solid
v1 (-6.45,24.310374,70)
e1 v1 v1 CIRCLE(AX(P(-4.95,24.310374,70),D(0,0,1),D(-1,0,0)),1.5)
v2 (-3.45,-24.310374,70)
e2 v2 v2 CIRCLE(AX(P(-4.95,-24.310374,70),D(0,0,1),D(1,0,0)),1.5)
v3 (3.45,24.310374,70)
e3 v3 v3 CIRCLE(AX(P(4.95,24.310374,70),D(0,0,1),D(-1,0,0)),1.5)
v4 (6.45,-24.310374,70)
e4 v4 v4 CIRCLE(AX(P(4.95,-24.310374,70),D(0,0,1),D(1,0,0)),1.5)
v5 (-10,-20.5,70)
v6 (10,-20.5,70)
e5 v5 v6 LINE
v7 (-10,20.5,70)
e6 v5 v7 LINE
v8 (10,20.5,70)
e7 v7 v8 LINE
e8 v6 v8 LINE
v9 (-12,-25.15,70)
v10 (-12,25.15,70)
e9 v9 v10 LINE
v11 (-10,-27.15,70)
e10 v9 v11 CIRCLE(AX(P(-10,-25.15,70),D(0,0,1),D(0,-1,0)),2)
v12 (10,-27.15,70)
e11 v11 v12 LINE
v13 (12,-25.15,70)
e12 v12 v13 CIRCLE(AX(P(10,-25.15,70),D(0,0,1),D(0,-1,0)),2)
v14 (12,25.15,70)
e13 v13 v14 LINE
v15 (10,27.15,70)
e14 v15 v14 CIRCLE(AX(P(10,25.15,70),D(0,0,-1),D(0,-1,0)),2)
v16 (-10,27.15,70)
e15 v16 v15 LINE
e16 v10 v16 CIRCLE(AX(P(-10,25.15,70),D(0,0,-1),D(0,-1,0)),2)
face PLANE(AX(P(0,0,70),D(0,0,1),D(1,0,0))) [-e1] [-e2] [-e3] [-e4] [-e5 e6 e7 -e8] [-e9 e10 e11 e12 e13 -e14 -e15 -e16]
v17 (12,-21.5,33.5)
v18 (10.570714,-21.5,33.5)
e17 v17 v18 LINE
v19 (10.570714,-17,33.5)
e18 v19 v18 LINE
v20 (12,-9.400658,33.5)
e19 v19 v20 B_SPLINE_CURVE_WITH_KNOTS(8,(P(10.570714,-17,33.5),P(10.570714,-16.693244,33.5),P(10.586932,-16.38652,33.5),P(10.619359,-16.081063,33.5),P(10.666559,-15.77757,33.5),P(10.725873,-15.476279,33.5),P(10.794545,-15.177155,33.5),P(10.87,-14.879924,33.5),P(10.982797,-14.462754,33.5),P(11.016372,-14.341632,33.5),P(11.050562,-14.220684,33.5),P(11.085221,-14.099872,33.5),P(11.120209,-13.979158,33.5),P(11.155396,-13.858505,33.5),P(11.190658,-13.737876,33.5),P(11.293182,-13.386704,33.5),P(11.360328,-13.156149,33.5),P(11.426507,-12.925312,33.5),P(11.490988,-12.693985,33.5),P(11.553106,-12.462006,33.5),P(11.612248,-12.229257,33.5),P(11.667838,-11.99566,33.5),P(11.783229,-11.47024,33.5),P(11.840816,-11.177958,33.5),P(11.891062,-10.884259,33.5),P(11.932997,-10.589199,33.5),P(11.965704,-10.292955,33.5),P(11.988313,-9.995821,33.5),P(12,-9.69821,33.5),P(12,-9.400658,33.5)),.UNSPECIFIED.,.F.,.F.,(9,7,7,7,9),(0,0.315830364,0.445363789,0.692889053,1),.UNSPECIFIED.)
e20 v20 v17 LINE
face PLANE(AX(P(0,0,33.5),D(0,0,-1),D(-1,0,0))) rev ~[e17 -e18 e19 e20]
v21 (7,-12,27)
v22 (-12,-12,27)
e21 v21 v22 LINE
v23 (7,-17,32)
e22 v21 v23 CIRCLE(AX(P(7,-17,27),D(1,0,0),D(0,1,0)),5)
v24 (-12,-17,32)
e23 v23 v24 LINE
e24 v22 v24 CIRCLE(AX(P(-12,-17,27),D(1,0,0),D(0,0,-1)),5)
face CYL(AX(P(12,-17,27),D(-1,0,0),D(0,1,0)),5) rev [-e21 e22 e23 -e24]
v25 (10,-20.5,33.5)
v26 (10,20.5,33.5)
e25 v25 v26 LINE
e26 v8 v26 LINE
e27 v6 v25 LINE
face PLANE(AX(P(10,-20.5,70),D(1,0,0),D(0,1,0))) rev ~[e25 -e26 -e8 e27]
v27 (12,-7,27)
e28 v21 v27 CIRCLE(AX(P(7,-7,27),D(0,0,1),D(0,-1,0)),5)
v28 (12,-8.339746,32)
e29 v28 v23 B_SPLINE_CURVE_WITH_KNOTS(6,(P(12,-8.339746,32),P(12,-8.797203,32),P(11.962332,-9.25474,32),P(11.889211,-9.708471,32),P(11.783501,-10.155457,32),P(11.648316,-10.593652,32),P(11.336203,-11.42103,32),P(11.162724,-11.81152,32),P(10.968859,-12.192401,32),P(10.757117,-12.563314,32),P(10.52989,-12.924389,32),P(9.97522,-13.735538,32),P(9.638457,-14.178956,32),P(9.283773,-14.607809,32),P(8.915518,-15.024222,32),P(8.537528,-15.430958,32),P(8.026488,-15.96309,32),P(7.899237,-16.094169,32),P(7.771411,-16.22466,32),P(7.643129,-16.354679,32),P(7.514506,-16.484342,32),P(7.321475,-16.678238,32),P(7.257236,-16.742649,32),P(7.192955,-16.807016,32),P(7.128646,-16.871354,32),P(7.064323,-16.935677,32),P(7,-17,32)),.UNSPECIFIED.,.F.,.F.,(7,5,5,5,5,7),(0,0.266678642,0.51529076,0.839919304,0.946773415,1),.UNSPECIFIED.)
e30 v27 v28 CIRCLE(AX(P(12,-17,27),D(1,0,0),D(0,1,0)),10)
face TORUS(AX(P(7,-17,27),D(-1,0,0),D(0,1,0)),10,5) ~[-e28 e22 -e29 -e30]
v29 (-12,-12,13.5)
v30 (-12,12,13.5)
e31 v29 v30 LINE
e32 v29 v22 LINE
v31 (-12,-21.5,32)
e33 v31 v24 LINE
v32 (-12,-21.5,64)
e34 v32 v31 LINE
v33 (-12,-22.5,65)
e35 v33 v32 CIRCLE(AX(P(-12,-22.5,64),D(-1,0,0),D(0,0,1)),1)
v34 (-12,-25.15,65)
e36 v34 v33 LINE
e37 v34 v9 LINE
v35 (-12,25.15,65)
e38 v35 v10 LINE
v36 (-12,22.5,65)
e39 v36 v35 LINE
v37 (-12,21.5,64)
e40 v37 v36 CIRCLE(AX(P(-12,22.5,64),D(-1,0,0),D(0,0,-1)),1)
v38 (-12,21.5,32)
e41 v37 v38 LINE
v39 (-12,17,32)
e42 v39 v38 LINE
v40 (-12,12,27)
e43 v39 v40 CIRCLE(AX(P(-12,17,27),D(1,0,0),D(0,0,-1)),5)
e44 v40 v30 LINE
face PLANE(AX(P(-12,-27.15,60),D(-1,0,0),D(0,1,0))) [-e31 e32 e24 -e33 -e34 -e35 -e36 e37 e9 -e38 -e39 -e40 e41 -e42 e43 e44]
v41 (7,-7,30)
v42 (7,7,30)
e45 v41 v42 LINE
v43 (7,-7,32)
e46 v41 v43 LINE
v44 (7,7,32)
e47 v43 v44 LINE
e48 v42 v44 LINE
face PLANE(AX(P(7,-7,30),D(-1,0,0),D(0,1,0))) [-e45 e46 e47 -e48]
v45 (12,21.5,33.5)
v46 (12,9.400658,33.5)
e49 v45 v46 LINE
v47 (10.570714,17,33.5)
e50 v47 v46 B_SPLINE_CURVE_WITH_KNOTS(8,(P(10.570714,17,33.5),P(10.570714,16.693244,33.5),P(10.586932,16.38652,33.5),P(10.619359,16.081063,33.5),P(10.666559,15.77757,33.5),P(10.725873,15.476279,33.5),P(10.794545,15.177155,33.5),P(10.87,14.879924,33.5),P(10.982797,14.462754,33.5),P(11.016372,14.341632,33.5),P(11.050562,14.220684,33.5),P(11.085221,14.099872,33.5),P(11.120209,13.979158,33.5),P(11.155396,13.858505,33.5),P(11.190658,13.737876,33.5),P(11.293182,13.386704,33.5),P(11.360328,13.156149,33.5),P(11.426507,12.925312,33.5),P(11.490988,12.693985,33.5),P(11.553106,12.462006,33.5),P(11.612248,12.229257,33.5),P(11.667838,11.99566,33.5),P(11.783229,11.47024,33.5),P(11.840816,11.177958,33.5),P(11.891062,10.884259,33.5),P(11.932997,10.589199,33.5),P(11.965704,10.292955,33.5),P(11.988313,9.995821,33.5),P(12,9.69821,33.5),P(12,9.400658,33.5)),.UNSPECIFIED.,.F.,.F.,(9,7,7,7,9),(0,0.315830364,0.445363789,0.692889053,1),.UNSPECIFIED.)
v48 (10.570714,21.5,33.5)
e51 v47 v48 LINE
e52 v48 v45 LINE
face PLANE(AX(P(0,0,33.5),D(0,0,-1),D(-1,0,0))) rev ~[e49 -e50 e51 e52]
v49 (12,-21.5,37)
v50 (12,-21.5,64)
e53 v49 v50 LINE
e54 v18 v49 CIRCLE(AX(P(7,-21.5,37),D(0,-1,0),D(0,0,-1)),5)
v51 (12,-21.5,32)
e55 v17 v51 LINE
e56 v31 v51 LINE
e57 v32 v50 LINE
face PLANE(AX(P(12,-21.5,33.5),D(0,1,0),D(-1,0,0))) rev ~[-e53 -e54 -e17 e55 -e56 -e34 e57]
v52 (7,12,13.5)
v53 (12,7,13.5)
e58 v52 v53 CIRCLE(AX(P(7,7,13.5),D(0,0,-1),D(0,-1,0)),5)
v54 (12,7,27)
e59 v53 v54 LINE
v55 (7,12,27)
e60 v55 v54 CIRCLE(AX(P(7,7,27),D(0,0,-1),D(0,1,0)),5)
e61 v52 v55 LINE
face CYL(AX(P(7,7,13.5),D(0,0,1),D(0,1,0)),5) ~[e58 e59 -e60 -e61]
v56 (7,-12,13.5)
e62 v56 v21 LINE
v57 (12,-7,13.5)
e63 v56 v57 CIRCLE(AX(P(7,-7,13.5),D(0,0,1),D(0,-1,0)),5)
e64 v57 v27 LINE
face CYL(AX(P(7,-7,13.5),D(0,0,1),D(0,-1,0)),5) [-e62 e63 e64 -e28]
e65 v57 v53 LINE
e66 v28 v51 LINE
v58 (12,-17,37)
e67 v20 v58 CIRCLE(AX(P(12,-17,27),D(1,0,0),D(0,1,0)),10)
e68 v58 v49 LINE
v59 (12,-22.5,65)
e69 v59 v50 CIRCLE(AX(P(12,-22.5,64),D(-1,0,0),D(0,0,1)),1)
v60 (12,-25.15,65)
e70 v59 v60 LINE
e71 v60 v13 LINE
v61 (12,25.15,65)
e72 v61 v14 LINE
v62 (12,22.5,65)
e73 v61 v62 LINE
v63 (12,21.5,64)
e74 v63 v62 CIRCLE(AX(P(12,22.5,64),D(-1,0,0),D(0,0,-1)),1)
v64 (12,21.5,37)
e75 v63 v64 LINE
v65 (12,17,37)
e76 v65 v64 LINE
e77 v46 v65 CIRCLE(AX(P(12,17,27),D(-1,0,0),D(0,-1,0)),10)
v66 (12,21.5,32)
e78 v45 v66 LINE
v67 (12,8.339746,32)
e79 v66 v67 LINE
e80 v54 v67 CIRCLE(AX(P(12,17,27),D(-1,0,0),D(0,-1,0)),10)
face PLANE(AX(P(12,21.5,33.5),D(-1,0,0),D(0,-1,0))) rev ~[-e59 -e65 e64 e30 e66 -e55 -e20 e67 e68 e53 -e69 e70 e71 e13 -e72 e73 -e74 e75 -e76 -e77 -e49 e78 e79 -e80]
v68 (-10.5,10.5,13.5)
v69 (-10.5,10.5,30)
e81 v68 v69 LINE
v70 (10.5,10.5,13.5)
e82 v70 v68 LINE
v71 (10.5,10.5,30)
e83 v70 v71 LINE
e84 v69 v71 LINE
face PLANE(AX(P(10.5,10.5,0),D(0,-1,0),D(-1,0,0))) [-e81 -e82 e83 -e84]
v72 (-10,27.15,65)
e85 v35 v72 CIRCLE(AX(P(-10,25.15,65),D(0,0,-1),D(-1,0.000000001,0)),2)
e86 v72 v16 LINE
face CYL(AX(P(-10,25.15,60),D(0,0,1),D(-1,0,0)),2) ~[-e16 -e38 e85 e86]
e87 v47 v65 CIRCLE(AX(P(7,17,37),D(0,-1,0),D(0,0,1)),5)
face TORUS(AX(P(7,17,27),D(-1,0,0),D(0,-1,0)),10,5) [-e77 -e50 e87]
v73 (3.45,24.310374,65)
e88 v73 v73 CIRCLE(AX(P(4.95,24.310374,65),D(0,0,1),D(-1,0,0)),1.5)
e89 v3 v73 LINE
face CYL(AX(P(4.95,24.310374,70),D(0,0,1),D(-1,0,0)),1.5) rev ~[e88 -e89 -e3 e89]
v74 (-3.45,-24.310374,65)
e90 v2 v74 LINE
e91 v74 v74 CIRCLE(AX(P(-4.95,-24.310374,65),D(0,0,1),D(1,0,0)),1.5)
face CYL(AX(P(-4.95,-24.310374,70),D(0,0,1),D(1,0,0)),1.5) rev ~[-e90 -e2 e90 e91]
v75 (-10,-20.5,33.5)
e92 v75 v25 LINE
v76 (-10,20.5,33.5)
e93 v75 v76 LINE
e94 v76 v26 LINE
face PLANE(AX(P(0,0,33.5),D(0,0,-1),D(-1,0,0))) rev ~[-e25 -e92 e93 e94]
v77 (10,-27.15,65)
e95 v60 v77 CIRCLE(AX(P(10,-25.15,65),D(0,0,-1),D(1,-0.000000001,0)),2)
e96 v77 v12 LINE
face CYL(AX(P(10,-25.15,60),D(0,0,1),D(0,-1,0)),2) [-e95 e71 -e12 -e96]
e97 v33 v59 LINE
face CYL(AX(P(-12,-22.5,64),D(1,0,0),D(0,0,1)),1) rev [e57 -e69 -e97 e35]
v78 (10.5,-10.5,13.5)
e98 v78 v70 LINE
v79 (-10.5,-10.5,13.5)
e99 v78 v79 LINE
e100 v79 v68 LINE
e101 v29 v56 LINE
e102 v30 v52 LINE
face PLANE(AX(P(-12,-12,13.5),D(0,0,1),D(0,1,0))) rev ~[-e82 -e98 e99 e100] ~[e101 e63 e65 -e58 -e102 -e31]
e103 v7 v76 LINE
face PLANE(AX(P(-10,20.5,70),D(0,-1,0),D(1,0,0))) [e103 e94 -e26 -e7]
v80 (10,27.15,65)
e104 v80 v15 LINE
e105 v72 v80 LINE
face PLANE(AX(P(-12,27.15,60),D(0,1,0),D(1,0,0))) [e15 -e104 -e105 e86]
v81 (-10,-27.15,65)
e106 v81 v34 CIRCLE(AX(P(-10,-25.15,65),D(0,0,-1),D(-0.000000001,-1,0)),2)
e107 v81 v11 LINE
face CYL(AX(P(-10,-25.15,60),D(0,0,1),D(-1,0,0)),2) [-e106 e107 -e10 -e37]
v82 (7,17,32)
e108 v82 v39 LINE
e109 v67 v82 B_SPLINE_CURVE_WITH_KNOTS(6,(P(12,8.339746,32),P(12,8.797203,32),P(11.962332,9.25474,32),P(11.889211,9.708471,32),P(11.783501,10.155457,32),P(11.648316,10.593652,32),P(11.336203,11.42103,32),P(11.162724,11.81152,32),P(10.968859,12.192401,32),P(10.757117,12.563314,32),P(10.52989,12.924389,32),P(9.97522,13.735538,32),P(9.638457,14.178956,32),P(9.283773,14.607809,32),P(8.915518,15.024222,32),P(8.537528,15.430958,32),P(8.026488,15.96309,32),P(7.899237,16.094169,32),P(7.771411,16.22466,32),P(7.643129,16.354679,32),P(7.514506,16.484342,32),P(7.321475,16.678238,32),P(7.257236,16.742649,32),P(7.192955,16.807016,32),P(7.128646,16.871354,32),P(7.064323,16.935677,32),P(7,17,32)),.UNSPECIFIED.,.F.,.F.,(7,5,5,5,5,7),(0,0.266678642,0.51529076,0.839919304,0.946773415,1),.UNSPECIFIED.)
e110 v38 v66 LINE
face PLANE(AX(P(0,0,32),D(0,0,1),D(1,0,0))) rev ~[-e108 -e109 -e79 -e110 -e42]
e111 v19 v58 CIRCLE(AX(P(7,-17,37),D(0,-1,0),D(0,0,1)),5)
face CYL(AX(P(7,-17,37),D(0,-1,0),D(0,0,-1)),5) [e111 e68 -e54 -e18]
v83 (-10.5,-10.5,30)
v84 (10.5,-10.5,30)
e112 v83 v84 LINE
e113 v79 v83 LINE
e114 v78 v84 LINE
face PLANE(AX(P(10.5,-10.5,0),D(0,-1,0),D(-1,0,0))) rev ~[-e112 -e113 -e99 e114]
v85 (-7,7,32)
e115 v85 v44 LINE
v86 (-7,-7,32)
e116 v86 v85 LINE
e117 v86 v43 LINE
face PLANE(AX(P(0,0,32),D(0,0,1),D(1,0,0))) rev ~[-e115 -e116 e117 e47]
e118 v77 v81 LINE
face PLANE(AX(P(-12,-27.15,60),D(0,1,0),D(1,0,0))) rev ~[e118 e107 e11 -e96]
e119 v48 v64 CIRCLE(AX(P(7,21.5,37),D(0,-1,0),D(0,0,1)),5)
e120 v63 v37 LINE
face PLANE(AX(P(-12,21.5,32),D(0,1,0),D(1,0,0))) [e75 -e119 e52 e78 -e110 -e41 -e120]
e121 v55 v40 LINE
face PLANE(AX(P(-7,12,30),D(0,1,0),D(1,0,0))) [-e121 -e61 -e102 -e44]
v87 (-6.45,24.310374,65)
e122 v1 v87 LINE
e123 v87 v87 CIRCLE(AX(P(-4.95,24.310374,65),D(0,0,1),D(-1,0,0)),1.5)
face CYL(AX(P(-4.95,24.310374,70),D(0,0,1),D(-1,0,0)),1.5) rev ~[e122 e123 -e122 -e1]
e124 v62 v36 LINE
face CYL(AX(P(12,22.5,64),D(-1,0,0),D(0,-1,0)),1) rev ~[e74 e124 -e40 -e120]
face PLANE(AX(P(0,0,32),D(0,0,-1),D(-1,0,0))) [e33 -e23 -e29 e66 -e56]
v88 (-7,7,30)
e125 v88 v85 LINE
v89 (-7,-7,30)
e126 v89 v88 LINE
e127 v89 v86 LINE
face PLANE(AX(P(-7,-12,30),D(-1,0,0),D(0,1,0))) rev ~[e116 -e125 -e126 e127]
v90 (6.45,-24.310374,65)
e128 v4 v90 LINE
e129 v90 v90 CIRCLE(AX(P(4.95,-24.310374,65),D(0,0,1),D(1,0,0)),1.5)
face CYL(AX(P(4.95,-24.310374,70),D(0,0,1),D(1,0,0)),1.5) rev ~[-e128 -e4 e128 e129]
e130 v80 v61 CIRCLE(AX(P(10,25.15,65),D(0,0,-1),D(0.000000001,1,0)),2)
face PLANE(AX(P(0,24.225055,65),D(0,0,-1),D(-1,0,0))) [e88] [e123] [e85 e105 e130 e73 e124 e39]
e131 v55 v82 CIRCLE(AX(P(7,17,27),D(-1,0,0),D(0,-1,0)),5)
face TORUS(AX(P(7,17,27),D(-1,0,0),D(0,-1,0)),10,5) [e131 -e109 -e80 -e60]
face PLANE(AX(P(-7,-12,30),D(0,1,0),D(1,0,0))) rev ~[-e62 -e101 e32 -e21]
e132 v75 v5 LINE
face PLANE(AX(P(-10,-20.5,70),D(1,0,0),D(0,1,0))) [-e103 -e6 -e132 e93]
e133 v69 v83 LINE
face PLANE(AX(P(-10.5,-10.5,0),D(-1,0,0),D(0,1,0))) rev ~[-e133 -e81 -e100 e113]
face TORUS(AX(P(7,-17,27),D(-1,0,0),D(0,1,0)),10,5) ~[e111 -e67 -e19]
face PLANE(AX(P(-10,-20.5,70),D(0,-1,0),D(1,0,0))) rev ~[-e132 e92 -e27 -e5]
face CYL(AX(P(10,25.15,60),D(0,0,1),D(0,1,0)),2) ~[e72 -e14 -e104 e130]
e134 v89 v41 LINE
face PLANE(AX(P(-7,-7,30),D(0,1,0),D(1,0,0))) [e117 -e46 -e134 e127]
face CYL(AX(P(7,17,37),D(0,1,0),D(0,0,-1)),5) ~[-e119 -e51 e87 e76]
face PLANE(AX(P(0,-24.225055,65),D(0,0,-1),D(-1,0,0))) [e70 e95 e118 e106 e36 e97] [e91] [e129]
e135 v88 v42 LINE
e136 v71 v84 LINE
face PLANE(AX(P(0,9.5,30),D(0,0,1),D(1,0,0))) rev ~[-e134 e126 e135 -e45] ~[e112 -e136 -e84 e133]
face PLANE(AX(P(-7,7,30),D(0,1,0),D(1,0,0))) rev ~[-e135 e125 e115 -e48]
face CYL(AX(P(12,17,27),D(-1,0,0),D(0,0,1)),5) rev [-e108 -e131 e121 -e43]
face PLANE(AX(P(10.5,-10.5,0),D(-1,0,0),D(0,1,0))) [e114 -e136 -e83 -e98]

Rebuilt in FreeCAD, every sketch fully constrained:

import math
import FreeCAD as App
import Part
import Sketcher

V = App.Vector


def edges_at(feature, points):
    """Names of the edges that pass closest to the given points."""
    edges = feature.Shape.Edges
    near = lambda p: min(range(len(edges)), key=lambda i: edges[i].distToShape(Part.Vertex(*p))[0])
    return sorted({f"Edge{near(p) + 1}" for p in points})

doc = App.newDocument("Part")
params = doc.addObject("Spreadsheet::Sheet", "Params")
for row, (alias, value) in enumerate([
    ("sketch1_width", "24 mm"),
    ("pad1_length", "30 mm"),
    ("sketch2_width", "21 mm"),
    ("sketch3_width", "5 mm"),
    ("sketch3_height", "24 mm"),
    ("pad2_length", "2 mm"),
    ("sketch4_width", "19 mm"),
    ("sketch4_height", "5 mm"),
    ("pad3_length", "2 mm"),
    ("sketch5_width", "5 mm"),
    ("sketch5_height", "19 mm"),
    ("pad4_length", "2 mm"),
    ("sketch6_width", "14 mm"),
    ("sketch6_height", "5 mm"),
    ("pad5_length", "2 mm"),
    ("sketch7_width", "24 mm"),
    ("sketch7_height", "43 mm"),
    ("pad6_length", "28 mm"),
    ("sketch8_width", "20 mm"),
    ("sketch8_height", "41 mm"),
    ("pocket2_length", "27 mm"),
    ("sketch9_width", "24 mm"),
    ("sketch9_height", "54.3 mm"),
    ("pad7_length", "10 mm"),
    ("sketch10_width", "20 mm"),
    ("sketch10_height", "41 mm"),
    ("pocket3_length", "10 mm"),
    ("sketch11_diameter", "3 mm"),
    ("pocket4_length", "10 mm"),
    ("fillet_radius", "5 mm"),
    ("fillet2_radius", "2 mm"),
    ("sketch12_radius", "2 mm"),
    ("sketch12_width", "20 mm"),
    ("sketch12_height", "3.65 mm"),
    ("pocket5_length", "5 mm"),
    ("sketch13_radius", "2 mm"),
    ("sketch13_width", "20 mm"),
    ("sketch13_height", "3.65 mm"),
    ("pocket6_length", "5 mm"),
    ("fillet3_radius", "1 mm"),
    ("sketch14_height", "13.5 mm"),
    ("pocket7_length", "45 mm"),
    ("fillet4_radius", "5 mm"),
    ("sketch15_width", "24 mm"),
    ("sketch15_height", "43 mm"),
    ("pad8_length", "1.5 mm"),
], start=1):
    params.set(f"A{row}", alias)
    params.set(f"B{row}", "=" + value)
    params.setAlias(f"B{row}", alias)

body = doc.addObject("PartDesign::Body", "Body")

sketch1 = body.newObject("Sketcher::SketchObject", "Sketch")
sketch1.AttachmentSupport = (doc.getObject("XY_Plane"), [""])
sketch1.MapMode = "FlatFace"
sketch1.addGeometry(Part.LineSegment(V(-12, 12, 0), V(-12, -12, 0)), False)
sketch1.addGeometry(Part.LineSegment(V(-12, -12, 0), V(12, -12, 0)), False)
sketch1.addGeometry(Part.LineSegment(V(12, -12, 0), V(12, 12, 0)), False)
sketch1.addGeometry(Part.LineSegment(V(12, 12, 0), V(-12, 12, 0)), False)
sketch1.addConstraint(Sketcher.Constraint("Coincident", 0, 2, 1, 1))
sketch1.addConstraint(Sketcher.Constraint("Coincident", 1, 2, 2, 1))
sketch1.addConstraint(Sketcher.Constraint("Coincident", 2, 2, 3, 1))
sketch1.addConstraint(Sketcher.Constraint("Coincident", 3, 2, 0, 1))
sketch1.addConstraint(Sketcher.Constraint("Vertical", 0))
sketch1.addConstraint(Sketcher.Constraint("Horizontal", 1))
sketch1.addConstraint(Sketcher.Constraint("Vertical", 2))
sketch1.addConstraint(Sketcher.Constraint("Horizontal", 3))
sketch1.addConstraint(Sketcher.Constraint("Symmetric", 0, 2, 2, 2, -1, 1))
sketch1.addConstraint(Sketcher.Constraint("Equal", 3, 0))
sketch1.addConstraint(Sketcher.Constraint("DistanceX", 1, 1, 1, 2, 24.0))
sketch1.setExpression("Constraints[10]", "Params.sketch1_width")
pad1 = body.newObject("PartDesign::Pad", "Pad")
pad1.Profile = sketch1
pad1.setExpression("Length", "Params.pad1_length")

sketch2 = body.newObject("Sketcher::SketchObject", "Sketch001")
sketch2.AttachmentSupport = (doc.getObject("XY_Plane"), [""])
sketch2.MapMode = "FlatFace"
sketch2.addGeometry(Part.LineSegment(V(10, 10, 0), V(10, -10, 0)), False)
sketch2.addGeometry(Part.LineSegment(V(10, -10, 0), V(-10, -10, 0)), False)
sketch2.addGeometry(Part.LineSegment(V(-10, -10, 0), V(-10, 10, 0)), False)
sketch2.addGeometry(Part.LineSegment(V(-10, 10, 0), V(10, 10, 0)), False)
sketch2.addConstraint(Sketcher.Constraint("Coincident", 0, 2, 1, 1))
sketch2.addConstraint(Sketcher.Constraint("Coincident", 1, 2, 2, 1))
sketch2.addConstraint(Sketcher.Constraint("Coincident", 2, 2, 3, 1))
sketch2.addConstraint(Sketcher.Constraint("Coincident", 3, 2, 0, 1))
sketch2.addConstraint(Sketcher.Constraint("Vertical", 0))
sketch2.addConstraint(Sketcher.Constraint("Horizontal", 1))
sketch2.addConstraint(Sketcher.Constraint("Vertical", 2))
sketch2.addConstraint(Sketcher.Constraint("Horizontal", 3))
sketch2.addConstraint(Sketcher.Constraint("Symmetric", 0, 2, 2, 2, -1, 1))
sketch2.addConstraint(Sketcher.Constraint("Equal", 3, 0))
sketch2.addConstraint(Sketcher.Constraint("DistanceX", 1, 2, 1, 1, 21.0))
sketch2.setExpression("Constraints[10]", "Params.sketch2_width")
pocket1 = body.newObject("PartDesign::Pocket", "Pocket")
pocket1.Profile = sketch2
pocket1.Type = "ThroughAll"
pocket1.Reversed = True

sketch3 = body.newObject("Sketcher::SketchObject", "Sketch002")
sketch3.AttachmentSupport = (doc.getObject("XY_Plane"), [""])
sketch3.MapMode = "FlatFace"
sketch3.AttachmentOffset = App.Placement(V(0, 0, 30), App.Rotation())
sketch3.addGeometry(Part.LineSegment(V(-12, 12, 0), V(-12, -12, 0)), False)
sketch3.addGeometry(Part.LineSegment(V(-12, -12, 0), V(-7, -12, 0)), False)
sketch3.addGeometry(Part.LineSegment(V(-7, -12, 0), V(-7, 12, 0)), False)
sketch3.addGeometry(Part.LineSegment(V(-7, 12, 0), V(-12, 12, 0)), False)
sketch3.addConstraint(Sketcher.Constraint("Coincident", 0, 2, 1, 1))
sketch3.addConstraint(Sketcher.Constraint("Coincident", 1, 2, 2, 1))
sketch3.addConstraint(Sketcher.Constraint("Coincident", 2, 2, 3, 1))
sketch3.addConstraint(Sketcher.Constraint("Coincident", 3, 2, 0, 1))
sketch3.addConstraint(Sketcher.Constraint("Vertical", 0))
sketch3.addConstraint(Sketcher.Constraint("Horizontal", 1))
sketch3.addConstraint(Sketcher.Constraint("Vertical", 2))
sketch3.addConstraint(Sketcher.Constraint("Horizontal", 3))
sketch3.addConstraint(Sketcher.Constraint("DistanceX", 1, 1, 1, 2, 5.0))
sketch3.addConstraint(Sketcher.Constraint("DistanceY", 0, 2, 0, 1, 24.0))
sketch3.addConstraint(Sketcher.Constraint("DistanceX", 0, 2, -1, 1, 12.0))
sketch3.addConstraint(Sketcher.Constraint("DistanceY", 0, 2, -1, 1, 12.0))
sketch3.setExpression("Constraints[8]", "Params.sketch3_width")
sketch3.setExpression("Constraints[9]", "Params.sketch3_height")
pad2 = body.newObject("PartDesign::Pad", "Pad001")
pad2.Profile = sketch3
pad2.setExpression("Length", "Params.pad2_length")

sketch4 = body.newObject("Sketcher::SketchObject", "Sketch003")
sketch4.AttachmentSupport = (doc.getObject("XY_Plane"), [""])
sketch4.MapMode = "FlatFace"
sketch4.AttachmentOffset = App.Placement(V(0, 0, 30), App.Rotation())
sketch4.addGeometry(Part.LineSegment(V(-7, -7, 0), V(-7, -12, 0)), False)
sketch4.addGeometry(Part.LineSegment(V(-7, -12, 0), V(12, -12, 0)), False)
sketch4.addGeometry(Part.LineSegment(V(12, -12, 0), V(12, -7, 0)), False)
sketch4.addGeometry(Part.LineSegment(V(12, -7, 0), V(-7, -7, 0)), False)
sketch4.addConstraint(Sketcher.Constraint("Coincident", 0, 2, 1, 1))
sketch4.addConstraint(Sketcher.Constraint("Coincident", 1, 2, 2, 1))
sketch4.addConstraint(Sketcher.Constraint("Coincident", 2, 2, 3, 1))
sketch4.addConstraint(Sketcher.Constraint("Coincident", 3, 2, 0, 1))
sketch4.addConstraint(Sketcher.Constraint("Vertical", 0))
sketch4.addConstraint(Sketcher.Constraint("Horizontal", 1))
sketch4.addConstraint(Sketcher.Constraint("Vertical", 2))
sketch4.addConstraint(Sketcher.Constraint("Horizontal", 3))
sketch4.addConstraint(Sketcher.Constraint("DistanceX", 1, 1, 1, 2, 19.0))
sketch4.addConstraint(Sketcher.Constraint("DistanceY", 0, 2, 0, 1, 5.0))
sketch4.addConstraint(Sketcher.Constraint("DistanceX", 0, 2, -1, 1, 7.0))
sketch4.addConstraint(Sketcher.Constraint("DistanceY", 0, 2, -1, 1, 12.0))
sketch4.setExpression("Constraints[8]", "Params.sketch4_width")
sketch4.setExpression("Constraints[9]", "Params.sketch4_height")
pad3 = body.newObject("PartDesign::Pad", "Pad002")
pad3.Profile = sketch4
pad3.setExpression("Length", "Params.pad3_length")

sketch5 = body.newObject("Sketcher::SketchObject", "Sketch004")
sketch5.AttachmentSupport = (doc.getObject("XY_Plane"), [""])
sketch5.MapMode = "FlatFace"
sketch5.AttachmentOffset = App.Placement(V(0, 0, 30), App.Rotation())
sketch5.addGeometry(Part.LineSegment(V(7, 12, 0), V(7, -7, 0)), False)
sketch5.addGeometry(Part.LineSegment(V(7, -7, 0), V(12, -7, 0)), False)
sketch5.addGeometry(Part.LineSegment(V(12, -7, 0), V(12, 12, 0)), False)
sketch5.addGeometry(Part.LineSegment(V(12, 12, 0), V(7, 12, 0)), False)
sketch5.addConstraint(Sketcher.Constraint("Coincident", 0, 2, 1, 1))
sketch5.addConstraint(Sketcher.Constraint("Coincident", 1, 2, 2, 1))
sketch5.addConstraint(Sketcher.Constraint("Coincident", 2, 2, 3, 1))
sketch5.addConstraint(Sketcher.Constraint("Coincident", 3, 2, 0, 1))
sketch5.addConstraint(Sketcher.Constraint("Vertical", 0))
sketch5.addConstraint(Sketcher.Constraint("Horizontal", 1))
sketch5.addConstraint(Sketcher.Constraint("Vertical", 2))
sketch5.addConstraint(Sketcher.Constraint("Horizontal", 3))
sketch5.addConstraint(Sketcher.Constraint("DistanceX", 1, 1, 1, 2, 5.0))
sketch5.addConstraint(Sketcher.Constraint("DistanceY", 0, 2, 0, 1, 19.0))
sketch5.addConstraint(Sketcher.Constraint("DistanceX", -1, 1, 0, 2, 7.0))
sketch5.addConstraint(Sketcher.Constraint("DistanceY", 0, 2, -1, 1, 7.0))
sketch5.setExpression("Constraints[8]", "Params.sketch5_width")
sketch5.setExpression("Constraints[9]", "Params.sketch5_height")
pad4 = body.newObject("PartDesign::Pad", "Pad003")
pad4.Profile = sketch5
pad4.setExpression("Length", "Params.pad4_length")

sketch6 = body.newObject("Sketcher::SketchObject", "Sketch005")
sketch6.AttachmentSupport = (doc.getObject("XY_Plane"), [""])
sketch6.MapMode = "FlatFace"
sketch6.AttachmentOffset = App.Placement(V(0, 0, 30), App.Rotation())
sketch6.addGeometry(Part.LineSegment(V(-7, 12, 0), V(-7, 7, 0)), False)
sketch6.addGeometry(Part.LineSegment(V(-7, 7, 0), V(7, 7, 0)), False)
sketch6.addGeometry(Part.LineSegment(V(7, 7, 0), V(7, 12, 0)), False)
sketch6.addGeometry(Part.LineSegment(V(7, 12, 0), V(-7, 12, 0)), False)
sketch6.addConstraint(Sketcher.Constraint("Coincident", 0, 2, 1, 1))
sketch6.addConstraint(Sketcher.Constraint("Coincident", 1, 2, 2, 1))
sketch6.addConstraint(Sketcher.Constraint("Coincident", 2, 2, 3, 1))
sketch6.addConstraint(Sketcher.Constraint("Coincident", 3, 2, 0, 1))
sketch6.addConstraint(Sketcher.Constraint("Vertical", 0))
sketch6.addConstraint(Sketcher.Constraint("Horizontal", 1))
sketch6.addConstraint(Sketcher.Constraint("Vertical", 2))
sketch6.addConstraint(Sketcher.Constraint("Horizontal", 3))
sketch6.addConstraint(Sketcher.Constraint("DistanceX", 1, 1, 1, 2, 14.0))
sketch6.addConstraint(Sketcher.Constraint("DistanceY", 0, 2, 0, 1, 5.0))
sketch6.addConstraint(Sketcher.Constraint("DistanceX", 0, 2, -1, 1, 7.0))
sketch6.addConstraint(Sketcher.Constraint("DistanceY", -1, 1, 0, 2, 7.0))
sketch6.setExpression("Constraints[8]", "Params.sketch6_width")
sketch6.setExpression("Constraints[9]", "Params.sketch6_height")
pad5 = body.newObject("PartDesign::Pad", "Pad004")
pad5.Profile = sketch6
pad5.setExpression("Length", "Params.pad5_length")

sketch7 = body.newObject("Sketcher::SketchObject", "Sketch006")
sketch7.AttachmentSupport = (doc.getObject("XY_Plane"), [""])
sketch7.MapMode = "FlatFace"
sketch7.AttachmentOffset = App.Placement(V(0, 0, 32), App.Rotation())
sketch7.addGeometry(Part.LineSegment(V(-12, 22, 0), V(-12, -22, 0)), False)
sketch7.addGeometry(Part.LineSegment(V(-12, -22, 0), V(12, -22, 0)), False)
sketch7.addGeometry(Part.LineSegment(V(12, -22, 0), V(12, 22, 0)), False)
sketch7.addGeometry(Part.LineSegment(V(12, 22, 0), V(-12, 22, 0)), False)
sketch7.addConstraint(Sketcher.Constraint("Coincident", 0, 2, 1, 1))
sketch7.addConstraint(Sketcher.Constraint("Coincident", 1, 2, 2, 1))
sketch7.addConstraint(Sketcher.Constraint("Coincident", 2, 2, 3, 1))
sketch7.addConstraint(Sketcher.Constraint("Coincident", 3, 2, 0, 1))
sketch7.addConstraint(Sketcher.Constraint("Vertical", 0))
sketch7.addConstraint(Sketcher.Constraint("Horizontal", 1))
sketch7.addConstraint(Sketcher.Constraint("Vertical", 2))
sketch7.addConstraint(Sketcher.Constraint("Horizontal", 3))
sketch7.addConstraint(Sketcher.Constraint("Symmetric", 0, 2, 2, 2, -1, 1))
sketch7.addConstraint(Sketcher.Constraint("DistanceX", 1, 1, 1, 2, 24.0))
sketch7.addConstraint(Sketcher.Constraint("DistanceY", 0, 2, 0, 1, 43.0))
sketch7.setExpression("Constraints[9]", "Params.sketch7_width")
sketch7.setExpression("Constraints[10]", "Params.sketch7_height")
pad6 = body.newObject("PartDesign::Pad", "Pad005")
pad6.Profile = sketch7
pad6.setExpression("Length", "Params.pad6_length")

sketch8 = body.newObject("Sketcher::SketchObject", "Sketch007")
sketch8.AttachmentSupport = (doc.getObject("XY_Plane"), [""])
sketch8.MapMode = "FlatFace"
sketch8.AttachmentOffset = App.Placement(V(0, 0, 60), App.Rotation())
sketch8.addGeometry(Part.LineSegment(V(-10, 20, 0), V(-10, -20, 0)), False)
sketch8.addGeometry(Part.LineSegment(V(-10, -20, 0), V(10, -20, 0)), False)
sketch8.addGeometry(Part.LineSegment(V(10, -20, 0), V(10, 20, 0)), False)
sketch8.addGeometry(Part.LineSegment(V(10, 20, 0), V(-10, 20, 0)), False)
sketch8.addConstraint(Sketcher.Constraint("Coincident", 0, 2, 1, 1))
sketch8.addConstraint(Sketcher.Constraint("Coincident", 1, 2, 2, 1))
sketch8.addConstraint(Sketcher.Constraint("Coincident", 2, 2, 3, 1))
sketch8.addConstraint(Sketcher.Constraint("Coincident", 3, 2, 0, 1))
sketch8.addConstraint(Sketcher.Constraint("Vertical", 0))
sketch8.addConstraint(Sketcher.Constraint("Horizontal", 1))
sketch8.addConstraint(Sketcher.Constraint("Vertical", 2))
sketch8.addConstraint(Sketcher.Constraint("Horizontal", 3))
sketch8.addConstraint(Sketcher.Constraint("Symmetric", 0, 2, 2, 2, -1, 1))
sketch8.addConstraint(Sketcher.Constraint("DistanceX", 1, 1, 1, 2, 20.0))
sketch8.addConstraint(Sketcher.Constraint("DistanceY", 0, 2, 0, 1, 41.0))
sketch8.setExpression("Constraints[9]", "Params.sketch8_width")
sketch8.setExpression("Constraints[10]", "Params.sketch8_height")
pocket2 = body.newObject("PartDesign::Pocket", "Pocket001")
pocket2.Profile = sketch8
pocket2.setExpression("Length", "Params.pocket2_length")

sketch9 = body.newObject("Sketcher::SketchObject", "Sketch008")
sketch9.AttachmentSupport = (doc.getObject("XY_Plane"), [""])
sketch9.MapMode = "FlatFace"
sketch9.AttachmentOffset = App.Placement(V(0, 0, 60), App.Rotation())
sketch9.addGeometry(Part.LineSegment(V(-12, 27, 0), V(-12, -27, 0)), False)
sketch9.addGeometry(Part.LineSegment(V(-12, -27, 0), V(12, -27, 0)), False)
sketch9.addGeometry(Part.LineSegment(V(12, -27, 0), V(12, 27, 0)), False)
sketch9.addGeometry(Part.LineSegment(V(12, 27, 0), V(-12, 27, 0)), False)
sketch9.addConstraint(Sketcher.Constraint("Coincident", 0, 2, 1, 1))
sketch9.addConstraint(Sketcher.Constraint("Coincident", 1, 2, 2, 1))
sketch9.addConstraint(Sketcher.Constraint("Coincident", 2, 2, 3, 1))
sketch9.addConstraint(Sketcher.Constraint("Coincident", 3, 2, 0, 1))
sketch9.addConstraint(Sketcher.Constraint("Vertical", 0))
sketch9.addConstraint(Sketcher.Constraint("Horizontal", 1))
sketch9.addConstraint(Sketcher.Constraint("Vertical", 2))
sketch9.addConstraint(Sketcher.Constraint("Horizontal", 3))
sketch9.addConstraint(Sketcher.Constraint("Symmetric", 0, 2, 2, 2, -1, 1))
sketch9.addConstraint(Sketcher.Constraint("DistanceX", 1, 1, 1, 2, 24.0))
sketch9.addConstraint(Sketcher.Constraint("DistanceY", 0, 2, 0, 1, 54.3))
sketch9.setExpression("Constraints[9]", "Params.sketch9_width")
sketch9.setExpression("Constraints[10]", "Params.sketch9_height")
pad7 = body.newObject("PartDesign::Pad", "Pad006")
pad7.Profile = sketch9
pad7.setExpression("Length", "Params.pad7_length")

sketch10 = body.newObject("Sketcher::SketchObject", "Sketch009")
sketch10.AttachmentSupport = (doc.getObject("XY_Plane"), [""])
sketch10.MapMode = "FlatFace"
sketch10.AttachmentOffset = App.Placement(V(0, 0, 70), App.Rotation())
sketch10.addGeometry(Part.LineSegment(V(-10, 20, 0), V(-10, -20, 0)), False)
sketch10.addGeometry(Part.LineSegment(V(-10, -20, 0), V(10, -20, 0)), False)
sketch10.addGeometry(Part.LineSegment(V(10, -20, 0), V(10, 20, 0)), False)
sketch10.addGeometry(Part.LineSegment(V(10, 20, 0), V(-10, 20, 0)), False)
sketch10.addConstraint(Sketcher.Constraint("Coincident", 0, 2, 1, 1))
sketch10.addConstraint(Sketcher.Constraint("Coincident", 1, 2, 2, 1))
sketch10.addConstraint(Sketcher.Constraint("Coincident", 2, 2, 3, 1))
sketch10.addConstraint(Sketcher.Constraint("Coincident", 3, 2, 0, 1))
sketch10.addConstraint(Sketcher.Constraint("Vertical", 0))
sketch10.addConstraint(Sketcher.Constraint("Horizontal", 1))
sketch10.addConstraint(Sketcher.Constraint("Vertical", 2))
sketch10.addConstraint(Sketcher.Constraint("Horizontal", 3))
sketch10.addConstraint(Sketcher.Constraint("Symmetric", 0, 2, 2, 2, -1, 1))
sketch10.addConstraint(Sketcher.Constraint("DistanceX", 1, 1, 1, 2, 20.0))
sketch10.addConstraint(Sketcher.Constraint("DistanceY", 0, 2, 0, 1, 41.0))
sketch10.setExpression("Constraints[9]", "Params.sketch10_width")
sketch10.setExpression("Constraints[10]", "Params.sketch10_height")
pocket3 = body.newObject("PartDesign::Pocket", "Pocket002")
pocket3.Profile = sketch10
pocket3.setExpression("Length", "Params.pocket3_length")

sketch11 = body.newObject("Sketcher::SketchObject", "Sketch010")
sketch11.AttachmentSupport = (doc.getObject("XY_Plane"), [""])
sketch11.MapMode = "FlatFace"
sketch11.AttachmentOffset = App.Placement(V(0, 0, 70), App.Rotation())
sketch11.addGeometry(Part.Circle(V(-5, -24.3, 0), V(0, 0, 1), 1.5), False)
sketch11.addGeometry(Part.Circle(V(5, -24.3, 0), V(0, 0, 1), 1.5), False)
sketch11.addGeometry(Part.Circle(V(5, 24.3, 0), V(0, 0, 1), 1.5), False)
sketch11.addGeometry(Part.Circle(V(-5, 24.3, 0), V(0, 0, 1), 1.5), False)
sketch11.addConstraint(Sketcher.Constraint("Equal", 0, 1))
sketch11.addConstraint(Sketcher.Constraint("Equal", 1, 2))
sketch11.addConstraint(Sketcher.Constraint("Equal", 2, 3))
sketch11.addConstraint(Sketcher.Constraint("Symmetric", 0, 3, 2, 3, -1, 1))
sketch11.addConstraint(Sketcher.Constraint("Symmetric", 1, 3, 3, 3, -1, 1))
sketch11.addConstraint(Sketcher.Constraint("Symmetric", 0, 3, 1, 3, -2))
sketch11.addConstraint(Sketcher.Constraint("Diameter", 0, 3.0))
sketch11.addConstraint(Sketcher.Constraint("DistanceX", 0, 3, 1, 3, 9.9))
sketch11.addConstraint(Sketcher.Constraint("DistanceY", 1, 3, 2, 3, 48.620748))
sketch11.setExpression("Constraints[6]", "Params.sketch11_diameter")
pocket4 = body.newObject("PartDesign::Pocket", "Pocket003")
pocket4.Profile = sketch11
pocket4.setExpression("Length", "Params.pocket4_length")
doc.recompute()

fillet = body.newObject("PartDesign::Fillet", "Fillet")
fillet.Base = (pocket4, edges_at(pocket4, [(0, -12, 32), (0, 12, 32)]))
fillet.setExpression("Radius", "Params.fillet_radius")
doc.recompute()

fillet2 = body.newObject("PartDesign::Fillet", "Fillet001")
fillet2.Base = (fillet, edges_at(fillet, [
    (12, -27.15, 65),
    (12, 27.15, 65),
    (-12, 27.15, 65),
    (-12, -27.15, 65),
]))
fillet2.setExpression("Radius", "Params.fillet2_radius")

sketch12 = body.newObject("Sketcher::SketchObject", "Sketch011")
sketch12.AttachmentSupport = (doc.getObject("XY_Plane"), [""])
sketch12.MapMode = "FlatFace"
sketch12.AttachmentOffset = App.Placement(V(0, 0, 65), App.Rotation())
sketch12.addGeometry(Part.LineSegment(V(12, -21.5, 0), V(12, -25.1, 0)), False)
sketch12.addGeometry(Part.ArcOfCircle(Part.Circle(V(10, -25.1, 0), V(0, 0, 1), 2), math.radians(-90), math.radians(0)), False)
sketch12.addGeometry(Part.LineSegment(V(10, -27.1, 0), V(-10, -27.1, 0)), False)
sketch12.addGeometry(Part.ArcOfCircle(Part.Circle(V(-10, -25.1, 0), V(0, 0, 1), 2), math.radians(-180), math.radians(-90)), False)
sketch12.addGeometry(Part.LineSegment(V(-12, -25.1, 0), V(-12, -21.5, 0)), False)
sketch12.addGeometry(Part.LineSegment(V(-12, -21.5, 0), V(12, -21.5, 0)), False)
sketch12.addConstraint(Sketcher.Constraint("Tangent", 0, 2, 1, 2))
sketch12.addConstraint(Sketcher.Constraint("Tangent", 1, 1, 2, 1))
sketch12.addConstraint(Sketcher.Constraint("Tangent", 2, 2, 3, 2))
sketch12.addConstraint(Sketcher.Constraint("Tangent", 3, 1, 4, 1))
sketch12.addConstraint(Sketcher.Constraint("Coincident", 4, 2, 5, 1))
sketch12.addConstraint(Sketcher.Constraint("Coincident", 5, 2, 0, 1))
sketch12.addConstraint(Sketcher.Constraint("Vertical", 0))
sketch12.addConstraint(Sketcher.Constraint("Horizontal", 2))
sketch12.addConstraint(Sketcher.Constraint("Vertical", 4))
sketch12.addConstraint(Sketcher.Constraint("Horizontal", 5))
sketch12.addConstraint(Sketcher.Constraint("Equal", 1, 3))
sketch12.addConstraint(Sketcher.Constraint("Radius", 1, 2.0))
sketch12.addConstraint(Sketcher.Constraint("DistanceX", 2, 2, 2, 1, 20.0))
sketch12.addConstraint(Sketcher.Constraint("DistanceX", -1, 1, 1, 3, 10.0))
sketch12.addConstraint(Sketcher.Constraint("DistanceY", 0, 2, 0, 1, 3.65))
sketch12.addConstraint(Sketcher.Constraint("DistanceY", 4, 2, -1, 1, 21.5))
sketch12.setExpression("Constraints[11]", "Params.sketch12_radius")
sketch12.setExpression("Constraints[12]", "Params.sketch12_width")
sketch12.setExpression("Constraints[14]", "Params.sketch12_height")
pocket5 = body.newObject("PartDesign::Pocket", "Pocket004")
pocket5.Profile = sketch12
pocket5.setExpression("Length", "Params.pocket5_length")

sketch13 = body.newObject("Sketcher::SketchObject", "Sketch012")
sketch13.AttachmentSupport = (doc.getObject("XY_Plane"), [""])
sketch13.MapMode = "FlatFace"
sketch13.AttachmentOffset = App.Placement(V(0, 0, 65), App.Rotation())
sketch13.addGeometry(Part.LineSegment(V(-12, 21.5, 0), V(-12, 25.1, 0)), False)
sketch13.addGeometry(Part.ArcOfCircle(Part.Circle(V(-10, 25.1, 0), V(0, 0, 1), 2), math.radians(90), math.radians(180)), False)
sketch13.addGeometry(Part.LineSegment(V(-10, 27.1, 0), V(10, 27.1, 0)), False)
sketch13.addGeometry(Part.ArcOfCircle(Part.Circle(V(10, 25.1, 0), V(0, 0, 1), 2), math.radians(0), math.radians(90)), False)
sketch13.addGeometry(Part.LineSegment(V(12, 25.1, 0), V(12, 21.5, 0)), False)
sketch13.addGeometry(Part.LineSegment(V(12, 21.5, 0), V(-12, 21.5, 0)), False)
sketch13.addConstraint(Sketcher.Constraint("Tangent", 0, 2, 1, 2))
sketch13.addConstraint(Sketcher.Constraint("Tangent", 1, 1, 2, 1))
sketch13.addConstraint(Sketcher.Constraint("Tangent", 2, 2, 3, 2))
sketch13.addConstraint(Sketcher.Constraint("Tangent", 3, 1, 4, 1))
sketch13.addConstraint(Sketcher.Constraint("Coincident", 4, 2, 5, 1))
sketch13.addConstraint(Sketcher.Constraint("Coincident", 5, 2, 0, 1))
sketch13.addConstraint(Sketcher.Constraint("Vertical", 0))
sketch13.addConstraint(Sketcher.Constraint("Horizontal", 2))
sketch13.addConstraint(Sketcher.Constraint("Vertical", 4))
sketch13.addConstraint(Sketcher.Constraint("Horizontal", 5))
sketch13.addConstraint(Sketcher.Constraint("Equal", 1, 3))
sketch13.addConstraint(Sketcher.Constraint("Radius", 1, 2.0))
sketch13.addConstraint(Sketcher.Constraint("DistanceX", 2, 1, 2, 2, 20.0))
sketch13.addConstraint(Sketcher.Constraint("DistanceX", 1, 3, -1, 1, 10.0))
sketch13.addConstraint(Sketcher.Constraint("DistanceY", 0, 1, 0, 2, 3.65))
sketch13.addConstraint(Sketcher.Constraint("DistanceY", -1, 1, 4, 2, 21.5))
sketch13.setExpression("Constraints[11]", "Params.sketch13_radius")
sketch13.setExpression("Constraints[12]", "Params.sketch13_width")
sketch13.setExpression("Constraints[14]", "Params.sketch13_height")
pocket6 = body.newObject("PartDesign::Pocket", "Pocket005")
pocket6.Profile = sketch13
pocket6.setExpression("Length", "Params.pocket6_length")
doc.recompute()

fillet3 = body.newObject("PartDesign::Fillet", "Fillet002")
fillet3.Base = (pocket6, edges_at(pocket6, [(0, -21.5, 65), (0, 21.5, 65)]))
fillet3.setExpression("Radius", "Params.fillet3_radius")

sketch14 = body.newObject("Sketcher::SketchObject", "Sketch013")
sketch14.AttachmentSupport = (doc.getObject("YZ_Plane"), [""])
sketch14.MapMode = "FlatFace"
sketch14.AttachmentOffset = App.Placement(V(0, 0, -12), App.Rotation())
sketch14.addGeometry(Part.LineSegment(V(12, 0, 0), V(-12, 0, 0)), False)
sketch14.addGeometry(Part.LineSegment(V(-12, 0, 0), V(-12, 14, 0)), False)
sketch14.addGeometry(Part.LineSegment(V(-12, 14, 0), V(12, 14, 0)), False)
sketch14.addGeometry(Part.LineSegment(V(12, 14, 0), V(12, 0, 0)), False)
sketch14.addConstraint(Sketcher.Constraint("Coincident", 0, 2, 1, 1))
sketch14.addConstraint(Sketcher.Constraint("Coincident", 1, 2, 2, 1))
sketch14.addConstraint(Sketcher.Constraint("Coincident", 2, 2, 3, 1))
sketch14.addConstraint(Sketcher.Constraint("Coincident", 3, 2, 0, 1))
sketch14.addConstraint(Sketcher.Constraint("Horizontal", 0))
sketch14.addConstraint(Sketcher.Constraint("Vertical", 1))
sketch14.addConstraint(Sketcher.Constraint("Horizontal", 2))
sketch14.addConstraint(Sketcher.Constraint("Vertical", 3))
sketch14.addConstraint(Sketcher.Constraint("PointOnObject", 0, 2, -1))
sketch14.addConstraint(Sketcher.Constraint("DistanceY", 1, 1, 1, 2, 13.5))
sketch14.addConstraint(Sketcher.Constraint("DistanceX", 0, 2, -1, 1, 12.0))
sketch14.addConstraint(Sketcher.Constraint("DistanceX", 0, 2, 0, 1, 24.10093))
sketch14.setExpression("Constraints[9]", "Params.sketch14_height")
pocket7 = body.newObject("PartDesign::Pocket", "Pocket006")
pocket7.Profile = sketch14
pocket7.setExpression("Length", "Params.pocket7_length")
pocket7.Reversed = True
doc.recompute()

fillet4 = body.newObject("PartDesign::Fillet", "Fillet003")
fillet4.Base = (pocket7, edges_at(pocket7, [
    (12, -12, 20.25),
    (12, 19.25, 32),
    (12, 12, 20.25),
    (12, -13.464, 30.536),
    (12, 13.464, 30.536),
    (12, -19.25, 32),
]))
fillet4.setExpression("Radius", "Params.fillet4_radius")

sketch15 = body.newObject("Sketcher::SketchObject", "Sketch014")
sketch15.AttachmentSupport = (doc.getObject("XY_Plane"), [""])
sketch15.MapMode = "FlatFace"
sketch15.AttachmentOffset = App.Placement(V(0, 0, 33.5), App.Rotation())
sketch15.addGeometry(Part.LineSegment(V(12, -22, 0), V(-12, -22, 0)), False)
sketch15.addGeometry(Part.LineSegment(V(-12, -22, 0), V(-12, 22, 0)), False)
sketch15.addGeometry(Part.LineSegment(V(-12, 22, 0), V(12, 22, 0)), False)
sketch15.addGeometry(Part.LineSegment(V(12, 22, 0), V(12, -22, 0)), False)
sketch15.addConstraint(Sketcher.Constraint("Coincident", 0, 2, 1, 1))
sketch15.addConstraint(Sketcher.Constraint("Coincident", 1, 2, 2, 1))
sketch15.addConstraint(Sketcher.Constraint("Coincident", 2, 2, 3, 1))
sketch15.addConstraint(Sketcher.Constraint("Coincident", 3, 2, 0, 1))
sketch15.addConstraint(Sketcher.Constraint("Horizontal", 0))
sketch15.addConstraint(Sketcher.Constraint("Vertical", 1))
sketch15.addConstraint(Sketcher.Constraint("Horizontal", 2))
sketch15.addConstraint(Sketcher.Constraint("Vertical", 3))
sketch15.addConstraint(Sketcher.Constraint("Symmetric", 0, 2, 2, 2, -1, 1))
sketch15.addConstraint(Sketcher.Constraint("DistanceX", 0, 2, 0, 1, 24.0))
sketch15.addConstraint(Sketcher.Constraint("DistanceY", 1, 1, 1, 2, 43.0))
sketch15.setExpression("Constraints[9]", "Params.sketch15_width")
sketch15.setExpression("Constraints[10]", "Params.sketch15_height")
pad8 = body.newObject("PartDesign::Pad", "Pad007")
pad8.Profile = sketch15
pad8.setExpression("Length", "Params.pad8_length")
pad8.Reversed = True

doc.recompute()
